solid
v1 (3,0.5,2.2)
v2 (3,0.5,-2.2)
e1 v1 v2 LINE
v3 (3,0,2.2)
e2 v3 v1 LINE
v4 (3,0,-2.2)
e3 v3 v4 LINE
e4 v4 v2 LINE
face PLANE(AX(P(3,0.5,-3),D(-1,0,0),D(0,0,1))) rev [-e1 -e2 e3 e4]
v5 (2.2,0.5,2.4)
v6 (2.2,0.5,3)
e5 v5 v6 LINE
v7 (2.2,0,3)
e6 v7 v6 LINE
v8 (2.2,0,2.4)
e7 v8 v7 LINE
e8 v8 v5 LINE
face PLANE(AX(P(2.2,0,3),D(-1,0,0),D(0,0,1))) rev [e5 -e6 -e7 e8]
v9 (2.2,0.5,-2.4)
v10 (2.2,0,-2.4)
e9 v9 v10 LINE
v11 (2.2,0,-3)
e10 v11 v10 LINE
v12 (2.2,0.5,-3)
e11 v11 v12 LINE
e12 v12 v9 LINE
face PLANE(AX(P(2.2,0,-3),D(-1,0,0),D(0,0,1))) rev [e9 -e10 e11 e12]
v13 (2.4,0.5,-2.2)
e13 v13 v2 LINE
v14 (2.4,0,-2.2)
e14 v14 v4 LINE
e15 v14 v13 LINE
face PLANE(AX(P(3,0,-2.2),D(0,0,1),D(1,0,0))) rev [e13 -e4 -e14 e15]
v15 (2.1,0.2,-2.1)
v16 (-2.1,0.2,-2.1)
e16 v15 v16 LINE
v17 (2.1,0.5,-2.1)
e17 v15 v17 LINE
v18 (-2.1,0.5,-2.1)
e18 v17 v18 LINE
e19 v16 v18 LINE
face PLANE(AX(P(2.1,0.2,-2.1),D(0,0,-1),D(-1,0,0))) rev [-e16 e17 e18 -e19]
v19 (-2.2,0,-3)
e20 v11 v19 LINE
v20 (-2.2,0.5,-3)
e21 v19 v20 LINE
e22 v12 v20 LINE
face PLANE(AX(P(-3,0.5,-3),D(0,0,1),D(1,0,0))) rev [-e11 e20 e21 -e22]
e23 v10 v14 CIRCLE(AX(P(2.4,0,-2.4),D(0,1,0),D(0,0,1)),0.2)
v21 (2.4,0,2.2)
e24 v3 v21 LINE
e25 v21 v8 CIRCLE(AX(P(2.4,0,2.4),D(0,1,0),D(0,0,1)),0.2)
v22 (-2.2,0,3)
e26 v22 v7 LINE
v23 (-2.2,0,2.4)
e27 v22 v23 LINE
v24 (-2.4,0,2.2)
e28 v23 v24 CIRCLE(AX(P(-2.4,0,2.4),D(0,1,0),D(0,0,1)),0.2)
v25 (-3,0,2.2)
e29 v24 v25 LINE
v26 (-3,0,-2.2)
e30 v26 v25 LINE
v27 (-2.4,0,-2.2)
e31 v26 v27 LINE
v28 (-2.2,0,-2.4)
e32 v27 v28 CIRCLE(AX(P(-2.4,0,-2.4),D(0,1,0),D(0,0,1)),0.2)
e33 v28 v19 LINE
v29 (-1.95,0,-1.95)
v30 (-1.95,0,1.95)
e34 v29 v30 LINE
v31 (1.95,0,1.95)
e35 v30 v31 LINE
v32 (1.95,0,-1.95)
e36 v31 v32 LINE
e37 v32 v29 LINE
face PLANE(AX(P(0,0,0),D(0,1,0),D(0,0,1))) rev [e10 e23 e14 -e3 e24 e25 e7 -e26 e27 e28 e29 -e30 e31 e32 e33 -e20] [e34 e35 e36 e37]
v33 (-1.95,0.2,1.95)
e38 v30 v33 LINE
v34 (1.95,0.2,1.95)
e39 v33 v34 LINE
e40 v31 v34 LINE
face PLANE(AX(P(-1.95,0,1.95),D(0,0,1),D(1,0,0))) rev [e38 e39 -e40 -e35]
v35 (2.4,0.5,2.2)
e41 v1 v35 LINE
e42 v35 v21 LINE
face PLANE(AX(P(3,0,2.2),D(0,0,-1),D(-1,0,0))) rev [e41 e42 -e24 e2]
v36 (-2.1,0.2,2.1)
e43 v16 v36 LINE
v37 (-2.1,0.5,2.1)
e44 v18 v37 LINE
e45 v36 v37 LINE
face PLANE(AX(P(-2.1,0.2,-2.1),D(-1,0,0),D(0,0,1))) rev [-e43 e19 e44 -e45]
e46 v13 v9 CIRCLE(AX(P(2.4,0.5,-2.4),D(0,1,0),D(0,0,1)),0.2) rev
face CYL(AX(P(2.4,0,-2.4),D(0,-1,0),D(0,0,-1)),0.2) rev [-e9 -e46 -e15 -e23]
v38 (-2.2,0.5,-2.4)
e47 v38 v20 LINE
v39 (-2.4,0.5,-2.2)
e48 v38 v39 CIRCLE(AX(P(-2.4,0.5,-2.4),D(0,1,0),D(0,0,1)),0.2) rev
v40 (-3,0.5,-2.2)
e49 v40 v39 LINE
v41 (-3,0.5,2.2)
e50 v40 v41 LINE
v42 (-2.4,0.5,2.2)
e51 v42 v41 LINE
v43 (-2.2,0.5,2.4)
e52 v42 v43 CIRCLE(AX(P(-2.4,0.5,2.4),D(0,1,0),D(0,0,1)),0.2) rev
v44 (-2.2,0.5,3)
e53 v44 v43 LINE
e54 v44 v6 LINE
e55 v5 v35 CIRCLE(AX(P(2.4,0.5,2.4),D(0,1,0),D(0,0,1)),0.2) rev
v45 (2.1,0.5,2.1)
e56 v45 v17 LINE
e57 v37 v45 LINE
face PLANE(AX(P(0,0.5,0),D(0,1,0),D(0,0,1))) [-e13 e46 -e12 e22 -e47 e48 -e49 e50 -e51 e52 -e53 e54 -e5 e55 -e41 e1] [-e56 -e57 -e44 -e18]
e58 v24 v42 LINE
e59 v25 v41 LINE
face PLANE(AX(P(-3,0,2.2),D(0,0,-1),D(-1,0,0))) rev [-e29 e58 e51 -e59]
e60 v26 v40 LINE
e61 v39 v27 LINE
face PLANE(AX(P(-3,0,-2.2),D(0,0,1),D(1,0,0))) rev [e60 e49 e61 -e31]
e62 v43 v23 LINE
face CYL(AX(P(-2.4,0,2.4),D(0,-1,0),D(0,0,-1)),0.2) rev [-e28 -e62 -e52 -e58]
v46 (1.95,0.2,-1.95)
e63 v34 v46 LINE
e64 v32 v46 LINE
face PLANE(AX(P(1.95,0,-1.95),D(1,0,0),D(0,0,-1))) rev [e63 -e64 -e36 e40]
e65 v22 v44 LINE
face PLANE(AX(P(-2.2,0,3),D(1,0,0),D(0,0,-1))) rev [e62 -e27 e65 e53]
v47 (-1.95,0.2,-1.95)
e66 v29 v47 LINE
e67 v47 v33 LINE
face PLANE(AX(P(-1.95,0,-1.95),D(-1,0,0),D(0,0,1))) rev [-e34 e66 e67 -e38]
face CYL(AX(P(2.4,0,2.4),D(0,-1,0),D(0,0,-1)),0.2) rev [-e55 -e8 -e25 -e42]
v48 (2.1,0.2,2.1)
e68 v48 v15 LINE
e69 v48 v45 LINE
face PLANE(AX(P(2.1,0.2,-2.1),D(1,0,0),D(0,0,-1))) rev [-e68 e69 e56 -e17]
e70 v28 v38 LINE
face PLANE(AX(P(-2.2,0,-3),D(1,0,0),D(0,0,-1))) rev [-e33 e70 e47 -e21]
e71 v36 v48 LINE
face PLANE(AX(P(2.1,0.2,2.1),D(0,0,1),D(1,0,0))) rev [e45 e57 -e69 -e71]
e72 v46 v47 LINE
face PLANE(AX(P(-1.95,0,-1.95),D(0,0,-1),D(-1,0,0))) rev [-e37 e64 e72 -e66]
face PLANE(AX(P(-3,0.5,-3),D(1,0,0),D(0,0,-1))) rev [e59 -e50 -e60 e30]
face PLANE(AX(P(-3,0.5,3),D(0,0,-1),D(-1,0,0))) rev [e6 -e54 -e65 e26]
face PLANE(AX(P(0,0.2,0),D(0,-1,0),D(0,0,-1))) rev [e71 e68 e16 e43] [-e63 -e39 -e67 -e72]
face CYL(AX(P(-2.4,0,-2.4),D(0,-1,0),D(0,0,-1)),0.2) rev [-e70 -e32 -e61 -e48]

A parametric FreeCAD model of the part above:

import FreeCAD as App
import Part
import Sketcher

V = App.Vector


def edges_at(feature, points):
    """Names of the edges that pass closest to the given points."""
    edges = feature.Shape.Edges
    near = lambda p: min(range(len(edges)), key=lambda i: edges[i].distToShape(Part.Vertex(*p))[0])
    return sorted({f"Edge{near(p) + 1}" for p in points})

doc = App.newDocument("Part")
body = doc.addObject("PartDesign::Body", "Body")

# Sketch on XZ plane
sketch1 = doc.addObject("Sketcher::SketchObject", "Sketch")
body.addObject(sketch1)
sketch1.AttachmentSupport = (doc.XZ_Plane, [""])
sketch1.MapMode = "FlatFace"
sketch1.addGeometry(Part.LineSegment(V(-3, -3, 0), V(-3, 3, 0)), False)
sketch1.addGeometry(Part.LineSegment(V(-3, 3, 0), V(3, 3, 0)), False)
sketch1.addGeometry(Part.LineSegment(V(3, 3, 0), V(3, -3, 0)), False)
sketch1.addGeometry(Part.LineSegment(V(3, -3, 0), V(-3, -3, 0)), False)
sketch1.addConstraint(Sketcher.Constraint("Coincident", 0, 2, 1, 1))
sketch1.addConstraint(Sketcher.Constraint("Coincident", 1, 2, 2, 1))
sketch1.addConstraint(Sketcher.Constraint("Coincident", 2, 2, 3, 1))
sketch1.addConstraint(Sketcher.Constraint("Coincident", 3, 2, 0, 1))
sketch1.addConstraint(Sketcher.Constraint("Vertical", 0))
sketch1.addConstraint(Sketcher.Constraint("Horizontal", 1))
sketch1.addConstraint(Sketcher.Constraint("Vertical", 2))
sketch1.addConstraint(Sketcher.Constraint("Horizontal", 3))
sketch1.addConstraint(Sketcher.Constraint("Symmetric", 0, 2, 2, 2, -1, 1))
sketch1.addConstraint(Sketcher.Constraint("Equal", 3, 0))
sketch1.addConstraint(Sketcher.Constraint("DistanceX", 1, 1, 1, 2, 6.0))
pad1 = doc.addObject("PartDesign::Pad", "Pad")
body.addObject(pad1)
pad1.Profile = sketch1
pad1.Length = 0.5
pad1.Reversed = True

# Sketch on XZ plane
sketch2 = doc.addObject("Sketcher::SketchObject", "Sketch001")
body.addObject(sketch2)
sketch2.AttachmentSupport = (doc.XZ_Plane, [""])
sketch2.MapMode = "FlatFace"
sketch2.AttachmentOffset = App.Placement(V(0, 0, -0.5), App.Rotation())
sketch2.addGeometry(Part.LineSegment(V(-1.9, -1.9, 0), V(-1.9, 1.9, 0)), False)
sketch2.addGeometry(Part.LineSegment(V(-1.9, 1.9, 0), V(1.9, 1.9, 0)), False)
sketch2.addGeometry(Part.LineSegment(V(1.9, 1.9, 0), V(1.9, -1.9, 0)), False)
sketch2.addGeometry(Part.LineSegment(V(1.9, -1.9, 0), V(-1.9, -1.9, 0)), False)
sketch2.addConstraint(Sketcher.Constraint("Coincident", 0, 2, 1, 1))
sketch2.addConstraint(Sketcher.Constraint("Coincident", 1, 2, 2, 1))
sketch2.addConstraint(Sketcher.Constraint("Coincident", 2, 2, 3, 1))
sketch2.addConstraint(Sketcher.Constraint("Coincident", 3, 2, 0, 1))
sketch2.addConstraint(Sketcher.Constraint("Vertical", 0))
sketch2.addConstraint(Sketcher.Constraint("Horizontal", 1))
sketch2.addConstraint(Sketcher.Constraint("Vertical", 2))
sketch2.addConstraint(Sketcher.Constraint("Horizontal", 3))
sketch2.addConstraint(Sketcher.Constraint("Symmetric", 0, 2, 2, 2, -1, 1))
sketch2.addConstraint(Sketcher.Constraint("Equal", 3, 0))
sketch2.addConstraint(Sketcher.Constraint("DistanceX", 1, 1, 1, 2, 3.9))
pocket1 = doc.addObject("PartDesign::Pocket", "Pocket")
body.addObject(pocket1)
pocket1.Profile = sketch2
pocket1.Type = "ThroughAll"
pocket1.Reversed = True

# Sketch on XZ plane
sketch3 = doc.addObject("Sketcher::SketchObject", "Sketch002")
body.addObject(sketch3)
sketch3.AttachmentSupport = (doc.XZ_Plane, [""])
sketch3.MapMode = "FlatFace"
sketch3.AttachmentOffset = App.Placement(V(0, 0, -0.5), App.Rotation())
sketch3.addGeometry(Part.LineSegment(V(-2.1, -2.1, 0), V(-2.1, 2.1, 0)), False)
sketch3.addGeometry(Part.LineSegment(V(-2.1, 2.1, 0), V(2.1, 2.1, 0)), False)
sketch3.addGeometry(Part.LineSegment(V(2.1, 2.1, 0), V(2.1, -2.1, 0)), False)
sketch3.addGeometry(Part.LineSegment(V(2.1, -2.1, 0), V(-2.1, -2.1, 0)), False)
sketch3.addConstraint(Sketcher.Constraint("Coincident", 0, 2, 1, 1))
sketch3.addConstraint(Sketcher.Constraint("Coincident", 1, 2, 2, 1))
sketch3.addConstraint(Sketcher.Constraint("Coincident", 2, 2, 3, 1))
sketch3.addConstraint(Sketcher.Constraint("Coincident", 3, 2, 0, 1))
sketch3.addConstraint(Sketcher.Constraint("Vertical", 0))
sketch3.addConstraint(Sketcher.Constraint("Horizontal", 1))
sketch3.addConstraint(Sketcher.Constraint("Vertical", 2))
sketch3.addConstraint(Sketcher.Constraint("Horizontal", 3))
sketch3.addConstraint(Sketcher.Constraint("Symmetric", 0, 2, 2, 2, -1, 1))
sketch3.addConstraint(Sketcher.Constraint("Equal", 3, 0))
sketch3.addConstraint(Sketcher.Constraint("DistanceX", 1, 1, 1, 2, 4.2))
pocket2 = doc.addObject("PartDesign::Pocket", "Pocket001")
body.addObject(pocket2)
pocket2.Profile = sketch3
pocket2.Length = 0.3
pocket2.Reversed = True

# Sketch on XZ plane
sketch4 = doc.addObject("Sketcher::SketchObject", "Sketch003")
body.addObject(sketch4)
sketch4.AttachmentSupport = (doc.XZ_Plane, [""])
sketch4.MapMode = "FlatFace"
sketch4.AttachmentOffset = App.Placement(V(0, 0, -0.5), App.Rotation())
sketch4.addGeometry(Part.LineSegment(V(-3, -3, 0), V(-3, -2.2, 0)), False)
sketch4.addGeometry(Part.LineSegment(V(-3, -2.2, 0), V(-2.2, -2.2, 0)), False)
sketch4.addGeometry(Part.LineSegment(V(-2.2, -2.2, 0), V(-2.2, -3, 0)), False)
sketch4.addGeometry(Part.LineSegment(V(-2.2, -3, 0), V(-3, -3, 0)), False)
sketch4.addGeometry(Part.LineSegment(V(2.2, -3, 0), V(2.2, -2.2, 0)), False)
sketch4.addGeometry(Part.LineSegment(V(2.2, -2.2, 0), V(3, -2.2, 0)), False)
sketch4.addGeometry(Part.LineSegment(V(3, -2.2, 0), V(3, -3, 0)), False)
sketch4.addGeometry(Part.LineSegment(V(3, -3, 0), V(2.2, -3, 0)), False)
sketch4.addGeometry(Part.LineSegment(V(-3, 2.2, 0), V(-3, 3, 0)), False)
sketch4.addGeometry(Part.LineSegment(V(-3, 3, 0), V(-2.2, 3, 0)), False)
sketch4.addGeometry(Part.LineSegment(V(-2.2, 3, 0), V(-2.2, 2.2, 0)), False)
sketch4.addGeometry(Part.LineSegment(V(-2.2, 2.2, 0), V(-3, 2.2, 0)), False)
sketch4.addGeometry(Part.LineSegment(V(2.2, 2.2, 0), V(2.2, 3, 0)), False)
sketch4.addGeometry(Part.LineSegment(V(2.2, 3, 0), V(3, 3, 0)), False)
sketch4.addGeometry(Part.LineSegment(V(3, 3, 0), V(3, 2.2, 0)), False)
sketch4.addGeometry(Part.LineSegment(V(3, 2.2, 0), V(2.2, 2.2, 0)), False)
sketch4.addConstraint(Sketcher.Constraint("Coincident", 0, 2, 1, 1))
sketch4.addConstraint(Sketcher.Constraint("Coincident", 1, 2, 2, 1))
sketch4.addConstraint(Sketcher.Constraint("Coincident", 2, 2, 3, 1))
sketch4.addConstraint(Sketcher.Constraint("Coincident", 3, 2, 0, 1))
sketch4.addConstraint(Sketcher.Constraint("Coincident", 4, 2, 5, 1))
sketch4.addConstraint(Sketcher.Constraint("Coincident", 5, 2, 6, 1))
sketch4.addConstraint(Sketcher.Constraint("Coincident", 6, 2, 7, 1))
sketch4.addConstraint(Sketcher.Constraint("Coincident", 7, 2, 4, 1))
sketch4.addConstraint(Sketcher.Constraint("Coincident", 8, 2, 9, 1))
sketch4.addConstraint(Sketcher.Constraint("Coincident", 9, 2, 10, 1))
sketch4.addConstraint(Sketcher.Constraint("Coincident", 10, 2, 11, 1))
sketch4.addConstraint(Sketcher.Constraint("Coincident", 11, 2, 8, 1))
sketch4.addConstraint(Sketcher.Constraint("Coincident", 12, 2, 13, 1))
sketch4.addConstraint(Sketcher.Constraint("Coincident", 13, 2, 14, 1))
sketch4.addConstraint(Sketcher.Constraint("Coincident", 14, 2, 15, 1))
sketch4.addConstraint(Sketcher.Constraint("Coincident", 15, 2, 12, 1))
sketch4.addConstraint(Sketcher.Constraint("Vertical", 0))
sketch4.addConstraint(Sketcher.Constraint("Horizontal", 1))
sketch4.addConstraint(Sketcher.Constraint("Vertical", 2))
sketch4.addConstraint(Sketcher.Constraint("Horizontal", 3))
sketch4.addConstraint(Sketcher.Constraint("Vertical", 4))
sketch4.addConstraint(Sketcher.Constraint("Horizontal", 5))
sketch4.addConstraint(Sketcher.Constraint("Vertical", 6))
sketch4.addConstraint(Sketcher.Constraint("Horizontal", 7))
sketch4.addConstraint(Sketcher.Constraint("Vertical", 8))
sketch4.addConstraint(Sketcher.Constraint("Horizontal", 9))
sketch4.addConstraint(Sketcher.Constraint("Vertical", 10))
sketch4.addConstraint(Sketcher.Constraint("Horizontal", 11))
sketch4.addConstraint(Sketcher.Constraint("Vertical", 12))
sketch4.addConstraint(Sketcher.Constraint("Horizontal", 13))
sketch4.addConstraint(Sketcher.Constraint("Vertical", 14))
sketch4.addConstraint(Sketcher.Constraint("Horizontal", 15))
sketch4.addConstraint(Sketcher.Constraint("Symmetric", 6, 2, 8, 2, -1, 1))
sketch4.addConstraint(Sketcher.Constraint("Symmetric", 4, 2, 10, 2, -1, 1))
sketch4.addConstraint(Sketcher.Constraint("Symmetric", 2, 2, 12, 2, -1, 1))
sketch4.addConstraint(Sketcher.Constraint("Symmetric", 0, 2, 14, 2, -1, 1))
sketch4.addConstraint(Sketcher.Constraint("Symmetric", 1, 2, 4, 2, -2))
sketch4.addConstraint(Sketcher.Constraint("Symmetric", 3, 2, 6, 2, -2))
sketch4.addConstraint(Sketcher.Constraint("Equal", 15, 0))
sketch4.addConstraint(Sketcher.Constraint("DistanceX", 1, 1, 1, 2, 0.8))
sketch4.addConstraint(Sketcher.Constraint("DistanceX", 0, 2, -1, 1, 3.0))
sketch4.addConstraint(Sketcher.Constraint("DistanceY", 2, 2, -1, 1, 3.0))
pocket3 = doc.addObject("PartDesign::Pocket", "Pocket002")
body.addObject(pocket3)
pocket3.Profile = sketch4
pocket3.Type = "ThroughAll"
pocket3.Reversed = True
doc.recompute()

fillet = doc.addObject("PartDesign::Fillet", "Fillet")
body.addObject(fillet)
fillet.Base = (pocket3, edges_at(pocket3, [
    (-2.2, 0.25, -2.2),
    (2.2, 0.25, -2.2),
    (-2.2, 0.25, 2.2),
    (2.2, 0.25, 2.2),
]))
fillet.Radius = 0.2

doc.recompute()
